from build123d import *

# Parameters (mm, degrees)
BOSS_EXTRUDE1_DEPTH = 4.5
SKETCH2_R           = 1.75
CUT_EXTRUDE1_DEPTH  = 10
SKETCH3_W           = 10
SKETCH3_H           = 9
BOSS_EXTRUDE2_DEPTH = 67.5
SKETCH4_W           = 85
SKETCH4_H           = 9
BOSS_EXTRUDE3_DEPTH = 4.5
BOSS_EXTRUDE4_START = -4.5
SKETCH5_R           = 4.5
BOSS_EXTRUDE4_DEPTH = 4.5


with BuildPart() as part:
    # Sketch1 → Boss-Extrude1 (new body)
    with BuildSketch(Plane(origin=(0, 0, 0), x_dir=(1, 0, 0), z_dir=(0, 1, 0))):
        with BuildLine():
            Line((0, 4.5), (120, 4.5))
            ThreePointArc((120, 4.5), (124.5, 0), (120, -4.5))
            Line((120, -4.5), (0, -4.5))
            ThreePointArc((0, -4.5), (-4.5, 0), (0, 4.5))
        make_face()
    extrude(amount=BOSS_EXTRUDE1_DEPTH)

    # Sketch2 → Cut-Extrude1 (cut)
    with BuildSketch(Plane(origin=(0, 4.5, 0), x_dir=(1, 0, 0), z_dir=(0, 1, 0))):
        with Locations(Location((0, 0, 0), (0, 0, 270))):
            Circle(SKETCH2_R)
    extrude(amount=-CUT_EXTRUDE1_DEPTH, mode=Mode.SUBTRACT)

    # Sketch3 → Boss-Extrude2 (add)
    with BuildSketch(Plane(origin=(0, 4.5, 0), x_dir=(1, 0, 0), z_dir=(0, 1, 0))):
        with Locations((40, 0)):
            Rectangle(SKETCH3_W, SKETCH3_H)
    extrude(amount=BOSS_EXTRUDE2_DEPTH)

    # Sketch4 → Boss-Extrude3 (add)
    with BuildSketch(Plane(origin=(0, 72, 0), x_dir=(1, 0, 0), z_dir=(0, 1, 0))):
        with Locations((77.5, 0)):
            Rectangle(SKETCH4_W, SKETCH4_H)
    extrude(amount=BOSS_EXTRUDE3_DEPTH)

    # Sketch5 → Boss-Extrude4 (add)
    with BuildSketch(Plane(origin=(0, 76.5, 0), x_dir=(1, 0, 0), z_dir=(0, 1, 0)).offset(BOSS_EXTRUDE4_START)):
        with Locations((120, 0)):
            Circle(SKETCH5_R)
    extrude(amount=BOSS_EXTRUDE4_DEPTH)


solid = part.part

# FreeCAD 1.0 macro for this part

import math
import FreeCAD as App
import Part
import Sketcher

doc = App.newDocument("Part")
body = doc.addObject("PartDesign::Body", "Body")

sketch1 = body.newObject("Sketcher::SketchObject", "Sketch")
sketch1.AttachmentSupport = (doc.getObject("XZ_Plane"), [""])
sketch1.MapMode = "FlatFace"
sketch1.addGeometry(Part.LineSegment(App.Vector(120, -4.5, 0), App.Vector(0, -4.5, 0)), False)
sketch1.addGeometry(Part.ArcOfCircle(Part.Circle(App.Vector(0, 0, 0), App.Vector(0, 0, 1), 4.5), math.radians(90), math.radians(270)), False)
sketch1.addGeometry(Part.LineSegment(App.Vector(0, 4.5, 0), App.Vector(120, 4.5, 0)), False)
sketch1.addGeometry(Part.ArcOfCircle(Part.Circle(App.Vector(120, 0, 0), App.Vector(0, 0, 1), 4.5), math.radians(-90), math.radians(90)), False)
sketch1.addConstraint(Sketcher.Constraint("Tangent", 0, 2, 1, 2))
sketch1.addConstraint(Sketcher.Constraint("Tangent", 1, 1, 2, 1))
sketch1.addConstraint(Sketcher.Constraint("Tangent", 2, 2, 3, 2))
sketch1.addConstraint(Sketcher.Constraint("Tangent", 3, 1, 0, 1))
sketch1.addConstraint(Sketcher.Constraint("Horizontal", 0))
sketch1.addConstraint(Sketcher.Constraint("Horizontal", 2))
sketch1.addConstraint(Sketcher.Constraint("Coincident", 1, 3, -1, 1))
sketch1.addConstraint(Sketcher.Constraint("Radius", 1, 4.5))
sketch1.addConstraint(Sketcher.Constraint("DistanceX", 0, 2, 0, 1, 120.0))
pad1 = body.newObject("PartDesign::Pad", "Pad")
pad1.Profile = sketch1
pad1.Length = 4.5
pad1.Reversed = True

sketch2 = body.newObject("Sketcher::SketchObject", "Sketch001")
sketch2.AttachmentSupport = (doc.getObject("XZ_Plane"), [""])
sketch2.MapMode = "FlatFace"
sketch2.AttachmentOffset = App.Placement(App.Vector(0, 0, -4.5), App.Rotation())
sketch2.addGeometry(Part.Circle(App.Vector(0, 0, 0), App.Vector(0, 0, 1), 1.8), False)
sketch2.addConstraint(Sketcher.Constraint("Coincident", 0, 3, -1, 1))
sketch2.addConstraint(Sketcher.Constraint("Diameter", 0, 3.5))
pocket1 = body.newObject("PartDesign::Pocket", "Pocket")
pocket1.Profile = sketch2
pocket1.Length = 10
pocket1.Reversed = True

sketch3 = body.newObject("Sketcher::SketchObject", "Sketch002")
sketch3.AttachmentSupport = (doc.getObject("XZ_Plane"), [""])
sketch3.MapMode = "FlatFace"
sketch3.AttachmentOffset = App.Placement(App.Vector(0, 0, -4.5), App.Rotation())
sketch3.addGeometry(Part.LineSegment(App.Vector(35, -4, 0), App.Vector(35, 4, 0)), False)
sketch3.addGeometry(Part.LineSegment(App.Vector(35, 4, 0), App.Vector(45, 4, 0)), False)
sketch3.addGeometry(Part.LineSegment(App.Vector(45, 4, 0), App.Vector(45, -4, 0)), False)
sketch3.addGeometry(Part.LineSegment(App.Vector(45, -4, 0), App.Vector(35, -4, 0)), False)
sketch3.addConstraint(Sketcher.Constraint("Coincident", 0, 2, 1, 1))
sketch3.addConstraint(Sketcher.Constraint("Coincident", 1, 2, 2, 1))
sketch3.addConstraint(Sketcher.Constraint("Coincident", 2, 2, 3, 1))
sketch3.addConstraint(Sketcher.Constraint("Coincident", 3, 2, 0, 1))
sketch3.addConstraint(Sketcher.Constraint("Vertical", 0))
sketch3.addConstraint(Sketcher.Constraint("Horizontal", 1))
sketch3.addConstraint(Sketcher.Constraint("Vertical", 2))
sketch3.addConstraint(Sketcher.Constraint("Horizontal", 3))
sketch3.addConstraint(Sketcher.Constraint("DistanceX", 1, 1, 1, 2, 10.0))
sketch3.addConstraint(Sketcher.Constraint("DistanceY", 0, 1, 0, 2, 9.0))
sketch3.addConstraint(Sketcher.Constraint("DistanceX", -1, 1, 0, 2, 35.0))
sketch3.addConstraint(Sketcher.Constraint("DistanceY", -1, 1, 0, 2, 4.5))
pad2 = body.newObject("PartDesign::Pad", "Pad001")
pad2.Profile = sketch3
pad2.Length = 67.5
pad2.Reversed = True

sketch4 = body.newObject("Sketcher::SketchObject", "Sketch003")
sketch4.AttachmentSupport = (doc.getObject("XZ_Plane"), [""])
sketch4.MapMode = "FlatFace"
sketch4.AttachmentOffset = App.Placement(App.Vector(0, 0, -72), App.Rotation())
sketch4.addGeometry(Part.LineSegment(App.Vector(35, -4, 0), App.Vector(35, 4, 0)), False)
sketch4.addGeometry(Part.LineSegment(App.Vector(35, 4, 0), App.Vector(120, 4, 0)), False)
sketch4.addGeometry(Part.LineSegment(App.Vector(120, 4, 0), App.Vector(120, -4, 0)), False)
sketch4.addGeometry(Part.LineSegment(App.Vector(120, -4, 0), App.Vector(35, -4, 0)), False)
sketch4.addConstraint(Sketcher.Constraint("Coincident", 0, 2, 1, 1))
sketch4.addConstraint(Sketcher.Constraint("Coincident", 1, 2, 2, 1))
sketch4.addConstraint(Sketcher.Constraint("Coincident", 2, 2, 3, 1))
sketch4.addConstraint(Sketcher.Constraint("Coincident", 3, 2, 0, 1))
sketch4.addConstraint(Sketcher.Constraint("Vertical", 0))
sketch4.addConstraint(Sketcher.Constraint("Horizontal", 1))
sketch4.addConstraint(Sketcher.Constraint("Vertical", 2))
sketch4.addConstraint(Sketcher.Constraint("Horizontal", 3))
sketch4.addConstraint(Sketcher.Constraint("DistanceX", 1, 1, 1, 2, 85.0))
sketch4.addConstraint(Sketcher.Constraint("DistanceY", 0, 1, 0, 2, 9.0))
sketch4.addConstraint(Sketcher.Constraint("DistanceX", -1, 1, 0, 2, 35.0))
sketch4.addConstraint(Sketcher.Constraint("DistanceY", -1, 1, 0, 2, 4.5))
pad3 = body.newObject("PartDesign::Pad", "Pad002")
pad3.Profile = sketch4
pad3.Length = 4.5
pad3.Reversed = True

sketch5 = body.newObject("Sketcher::SketchObject", "Sketch004")
sketch5.AttachmentSupport = (doc.getObject("XZ_Plane"), [""])
sketch5.MapMode = "FlatFace"
sketch5.AttachmentOffset = App.Placement(App.Vector(0, 0, -72), App.Rotation())
sketch5.addGeometry(Part.Circle(App.Vector(120, 0, 0), App.Vector(0, 0, 1), 4.5), False)
sketch5.addConstraint(Sketcher.Constraint("PointOnObject", 0, 3, -1))
sketch5.addConstraint(Sketcher.Constraint("Diameter", 0, 9.0))
sketch5.addConstraint(Sketcher.Constraint("DistanceX", -1, 1, 0, 3, 120.0))
pad4 = body.newObject("PartDesign::Pad", "Pad003")
pad4.Profile = sketch5
pad4.Length = 4.5
pad4.Reversed = True

doc.recompute()
